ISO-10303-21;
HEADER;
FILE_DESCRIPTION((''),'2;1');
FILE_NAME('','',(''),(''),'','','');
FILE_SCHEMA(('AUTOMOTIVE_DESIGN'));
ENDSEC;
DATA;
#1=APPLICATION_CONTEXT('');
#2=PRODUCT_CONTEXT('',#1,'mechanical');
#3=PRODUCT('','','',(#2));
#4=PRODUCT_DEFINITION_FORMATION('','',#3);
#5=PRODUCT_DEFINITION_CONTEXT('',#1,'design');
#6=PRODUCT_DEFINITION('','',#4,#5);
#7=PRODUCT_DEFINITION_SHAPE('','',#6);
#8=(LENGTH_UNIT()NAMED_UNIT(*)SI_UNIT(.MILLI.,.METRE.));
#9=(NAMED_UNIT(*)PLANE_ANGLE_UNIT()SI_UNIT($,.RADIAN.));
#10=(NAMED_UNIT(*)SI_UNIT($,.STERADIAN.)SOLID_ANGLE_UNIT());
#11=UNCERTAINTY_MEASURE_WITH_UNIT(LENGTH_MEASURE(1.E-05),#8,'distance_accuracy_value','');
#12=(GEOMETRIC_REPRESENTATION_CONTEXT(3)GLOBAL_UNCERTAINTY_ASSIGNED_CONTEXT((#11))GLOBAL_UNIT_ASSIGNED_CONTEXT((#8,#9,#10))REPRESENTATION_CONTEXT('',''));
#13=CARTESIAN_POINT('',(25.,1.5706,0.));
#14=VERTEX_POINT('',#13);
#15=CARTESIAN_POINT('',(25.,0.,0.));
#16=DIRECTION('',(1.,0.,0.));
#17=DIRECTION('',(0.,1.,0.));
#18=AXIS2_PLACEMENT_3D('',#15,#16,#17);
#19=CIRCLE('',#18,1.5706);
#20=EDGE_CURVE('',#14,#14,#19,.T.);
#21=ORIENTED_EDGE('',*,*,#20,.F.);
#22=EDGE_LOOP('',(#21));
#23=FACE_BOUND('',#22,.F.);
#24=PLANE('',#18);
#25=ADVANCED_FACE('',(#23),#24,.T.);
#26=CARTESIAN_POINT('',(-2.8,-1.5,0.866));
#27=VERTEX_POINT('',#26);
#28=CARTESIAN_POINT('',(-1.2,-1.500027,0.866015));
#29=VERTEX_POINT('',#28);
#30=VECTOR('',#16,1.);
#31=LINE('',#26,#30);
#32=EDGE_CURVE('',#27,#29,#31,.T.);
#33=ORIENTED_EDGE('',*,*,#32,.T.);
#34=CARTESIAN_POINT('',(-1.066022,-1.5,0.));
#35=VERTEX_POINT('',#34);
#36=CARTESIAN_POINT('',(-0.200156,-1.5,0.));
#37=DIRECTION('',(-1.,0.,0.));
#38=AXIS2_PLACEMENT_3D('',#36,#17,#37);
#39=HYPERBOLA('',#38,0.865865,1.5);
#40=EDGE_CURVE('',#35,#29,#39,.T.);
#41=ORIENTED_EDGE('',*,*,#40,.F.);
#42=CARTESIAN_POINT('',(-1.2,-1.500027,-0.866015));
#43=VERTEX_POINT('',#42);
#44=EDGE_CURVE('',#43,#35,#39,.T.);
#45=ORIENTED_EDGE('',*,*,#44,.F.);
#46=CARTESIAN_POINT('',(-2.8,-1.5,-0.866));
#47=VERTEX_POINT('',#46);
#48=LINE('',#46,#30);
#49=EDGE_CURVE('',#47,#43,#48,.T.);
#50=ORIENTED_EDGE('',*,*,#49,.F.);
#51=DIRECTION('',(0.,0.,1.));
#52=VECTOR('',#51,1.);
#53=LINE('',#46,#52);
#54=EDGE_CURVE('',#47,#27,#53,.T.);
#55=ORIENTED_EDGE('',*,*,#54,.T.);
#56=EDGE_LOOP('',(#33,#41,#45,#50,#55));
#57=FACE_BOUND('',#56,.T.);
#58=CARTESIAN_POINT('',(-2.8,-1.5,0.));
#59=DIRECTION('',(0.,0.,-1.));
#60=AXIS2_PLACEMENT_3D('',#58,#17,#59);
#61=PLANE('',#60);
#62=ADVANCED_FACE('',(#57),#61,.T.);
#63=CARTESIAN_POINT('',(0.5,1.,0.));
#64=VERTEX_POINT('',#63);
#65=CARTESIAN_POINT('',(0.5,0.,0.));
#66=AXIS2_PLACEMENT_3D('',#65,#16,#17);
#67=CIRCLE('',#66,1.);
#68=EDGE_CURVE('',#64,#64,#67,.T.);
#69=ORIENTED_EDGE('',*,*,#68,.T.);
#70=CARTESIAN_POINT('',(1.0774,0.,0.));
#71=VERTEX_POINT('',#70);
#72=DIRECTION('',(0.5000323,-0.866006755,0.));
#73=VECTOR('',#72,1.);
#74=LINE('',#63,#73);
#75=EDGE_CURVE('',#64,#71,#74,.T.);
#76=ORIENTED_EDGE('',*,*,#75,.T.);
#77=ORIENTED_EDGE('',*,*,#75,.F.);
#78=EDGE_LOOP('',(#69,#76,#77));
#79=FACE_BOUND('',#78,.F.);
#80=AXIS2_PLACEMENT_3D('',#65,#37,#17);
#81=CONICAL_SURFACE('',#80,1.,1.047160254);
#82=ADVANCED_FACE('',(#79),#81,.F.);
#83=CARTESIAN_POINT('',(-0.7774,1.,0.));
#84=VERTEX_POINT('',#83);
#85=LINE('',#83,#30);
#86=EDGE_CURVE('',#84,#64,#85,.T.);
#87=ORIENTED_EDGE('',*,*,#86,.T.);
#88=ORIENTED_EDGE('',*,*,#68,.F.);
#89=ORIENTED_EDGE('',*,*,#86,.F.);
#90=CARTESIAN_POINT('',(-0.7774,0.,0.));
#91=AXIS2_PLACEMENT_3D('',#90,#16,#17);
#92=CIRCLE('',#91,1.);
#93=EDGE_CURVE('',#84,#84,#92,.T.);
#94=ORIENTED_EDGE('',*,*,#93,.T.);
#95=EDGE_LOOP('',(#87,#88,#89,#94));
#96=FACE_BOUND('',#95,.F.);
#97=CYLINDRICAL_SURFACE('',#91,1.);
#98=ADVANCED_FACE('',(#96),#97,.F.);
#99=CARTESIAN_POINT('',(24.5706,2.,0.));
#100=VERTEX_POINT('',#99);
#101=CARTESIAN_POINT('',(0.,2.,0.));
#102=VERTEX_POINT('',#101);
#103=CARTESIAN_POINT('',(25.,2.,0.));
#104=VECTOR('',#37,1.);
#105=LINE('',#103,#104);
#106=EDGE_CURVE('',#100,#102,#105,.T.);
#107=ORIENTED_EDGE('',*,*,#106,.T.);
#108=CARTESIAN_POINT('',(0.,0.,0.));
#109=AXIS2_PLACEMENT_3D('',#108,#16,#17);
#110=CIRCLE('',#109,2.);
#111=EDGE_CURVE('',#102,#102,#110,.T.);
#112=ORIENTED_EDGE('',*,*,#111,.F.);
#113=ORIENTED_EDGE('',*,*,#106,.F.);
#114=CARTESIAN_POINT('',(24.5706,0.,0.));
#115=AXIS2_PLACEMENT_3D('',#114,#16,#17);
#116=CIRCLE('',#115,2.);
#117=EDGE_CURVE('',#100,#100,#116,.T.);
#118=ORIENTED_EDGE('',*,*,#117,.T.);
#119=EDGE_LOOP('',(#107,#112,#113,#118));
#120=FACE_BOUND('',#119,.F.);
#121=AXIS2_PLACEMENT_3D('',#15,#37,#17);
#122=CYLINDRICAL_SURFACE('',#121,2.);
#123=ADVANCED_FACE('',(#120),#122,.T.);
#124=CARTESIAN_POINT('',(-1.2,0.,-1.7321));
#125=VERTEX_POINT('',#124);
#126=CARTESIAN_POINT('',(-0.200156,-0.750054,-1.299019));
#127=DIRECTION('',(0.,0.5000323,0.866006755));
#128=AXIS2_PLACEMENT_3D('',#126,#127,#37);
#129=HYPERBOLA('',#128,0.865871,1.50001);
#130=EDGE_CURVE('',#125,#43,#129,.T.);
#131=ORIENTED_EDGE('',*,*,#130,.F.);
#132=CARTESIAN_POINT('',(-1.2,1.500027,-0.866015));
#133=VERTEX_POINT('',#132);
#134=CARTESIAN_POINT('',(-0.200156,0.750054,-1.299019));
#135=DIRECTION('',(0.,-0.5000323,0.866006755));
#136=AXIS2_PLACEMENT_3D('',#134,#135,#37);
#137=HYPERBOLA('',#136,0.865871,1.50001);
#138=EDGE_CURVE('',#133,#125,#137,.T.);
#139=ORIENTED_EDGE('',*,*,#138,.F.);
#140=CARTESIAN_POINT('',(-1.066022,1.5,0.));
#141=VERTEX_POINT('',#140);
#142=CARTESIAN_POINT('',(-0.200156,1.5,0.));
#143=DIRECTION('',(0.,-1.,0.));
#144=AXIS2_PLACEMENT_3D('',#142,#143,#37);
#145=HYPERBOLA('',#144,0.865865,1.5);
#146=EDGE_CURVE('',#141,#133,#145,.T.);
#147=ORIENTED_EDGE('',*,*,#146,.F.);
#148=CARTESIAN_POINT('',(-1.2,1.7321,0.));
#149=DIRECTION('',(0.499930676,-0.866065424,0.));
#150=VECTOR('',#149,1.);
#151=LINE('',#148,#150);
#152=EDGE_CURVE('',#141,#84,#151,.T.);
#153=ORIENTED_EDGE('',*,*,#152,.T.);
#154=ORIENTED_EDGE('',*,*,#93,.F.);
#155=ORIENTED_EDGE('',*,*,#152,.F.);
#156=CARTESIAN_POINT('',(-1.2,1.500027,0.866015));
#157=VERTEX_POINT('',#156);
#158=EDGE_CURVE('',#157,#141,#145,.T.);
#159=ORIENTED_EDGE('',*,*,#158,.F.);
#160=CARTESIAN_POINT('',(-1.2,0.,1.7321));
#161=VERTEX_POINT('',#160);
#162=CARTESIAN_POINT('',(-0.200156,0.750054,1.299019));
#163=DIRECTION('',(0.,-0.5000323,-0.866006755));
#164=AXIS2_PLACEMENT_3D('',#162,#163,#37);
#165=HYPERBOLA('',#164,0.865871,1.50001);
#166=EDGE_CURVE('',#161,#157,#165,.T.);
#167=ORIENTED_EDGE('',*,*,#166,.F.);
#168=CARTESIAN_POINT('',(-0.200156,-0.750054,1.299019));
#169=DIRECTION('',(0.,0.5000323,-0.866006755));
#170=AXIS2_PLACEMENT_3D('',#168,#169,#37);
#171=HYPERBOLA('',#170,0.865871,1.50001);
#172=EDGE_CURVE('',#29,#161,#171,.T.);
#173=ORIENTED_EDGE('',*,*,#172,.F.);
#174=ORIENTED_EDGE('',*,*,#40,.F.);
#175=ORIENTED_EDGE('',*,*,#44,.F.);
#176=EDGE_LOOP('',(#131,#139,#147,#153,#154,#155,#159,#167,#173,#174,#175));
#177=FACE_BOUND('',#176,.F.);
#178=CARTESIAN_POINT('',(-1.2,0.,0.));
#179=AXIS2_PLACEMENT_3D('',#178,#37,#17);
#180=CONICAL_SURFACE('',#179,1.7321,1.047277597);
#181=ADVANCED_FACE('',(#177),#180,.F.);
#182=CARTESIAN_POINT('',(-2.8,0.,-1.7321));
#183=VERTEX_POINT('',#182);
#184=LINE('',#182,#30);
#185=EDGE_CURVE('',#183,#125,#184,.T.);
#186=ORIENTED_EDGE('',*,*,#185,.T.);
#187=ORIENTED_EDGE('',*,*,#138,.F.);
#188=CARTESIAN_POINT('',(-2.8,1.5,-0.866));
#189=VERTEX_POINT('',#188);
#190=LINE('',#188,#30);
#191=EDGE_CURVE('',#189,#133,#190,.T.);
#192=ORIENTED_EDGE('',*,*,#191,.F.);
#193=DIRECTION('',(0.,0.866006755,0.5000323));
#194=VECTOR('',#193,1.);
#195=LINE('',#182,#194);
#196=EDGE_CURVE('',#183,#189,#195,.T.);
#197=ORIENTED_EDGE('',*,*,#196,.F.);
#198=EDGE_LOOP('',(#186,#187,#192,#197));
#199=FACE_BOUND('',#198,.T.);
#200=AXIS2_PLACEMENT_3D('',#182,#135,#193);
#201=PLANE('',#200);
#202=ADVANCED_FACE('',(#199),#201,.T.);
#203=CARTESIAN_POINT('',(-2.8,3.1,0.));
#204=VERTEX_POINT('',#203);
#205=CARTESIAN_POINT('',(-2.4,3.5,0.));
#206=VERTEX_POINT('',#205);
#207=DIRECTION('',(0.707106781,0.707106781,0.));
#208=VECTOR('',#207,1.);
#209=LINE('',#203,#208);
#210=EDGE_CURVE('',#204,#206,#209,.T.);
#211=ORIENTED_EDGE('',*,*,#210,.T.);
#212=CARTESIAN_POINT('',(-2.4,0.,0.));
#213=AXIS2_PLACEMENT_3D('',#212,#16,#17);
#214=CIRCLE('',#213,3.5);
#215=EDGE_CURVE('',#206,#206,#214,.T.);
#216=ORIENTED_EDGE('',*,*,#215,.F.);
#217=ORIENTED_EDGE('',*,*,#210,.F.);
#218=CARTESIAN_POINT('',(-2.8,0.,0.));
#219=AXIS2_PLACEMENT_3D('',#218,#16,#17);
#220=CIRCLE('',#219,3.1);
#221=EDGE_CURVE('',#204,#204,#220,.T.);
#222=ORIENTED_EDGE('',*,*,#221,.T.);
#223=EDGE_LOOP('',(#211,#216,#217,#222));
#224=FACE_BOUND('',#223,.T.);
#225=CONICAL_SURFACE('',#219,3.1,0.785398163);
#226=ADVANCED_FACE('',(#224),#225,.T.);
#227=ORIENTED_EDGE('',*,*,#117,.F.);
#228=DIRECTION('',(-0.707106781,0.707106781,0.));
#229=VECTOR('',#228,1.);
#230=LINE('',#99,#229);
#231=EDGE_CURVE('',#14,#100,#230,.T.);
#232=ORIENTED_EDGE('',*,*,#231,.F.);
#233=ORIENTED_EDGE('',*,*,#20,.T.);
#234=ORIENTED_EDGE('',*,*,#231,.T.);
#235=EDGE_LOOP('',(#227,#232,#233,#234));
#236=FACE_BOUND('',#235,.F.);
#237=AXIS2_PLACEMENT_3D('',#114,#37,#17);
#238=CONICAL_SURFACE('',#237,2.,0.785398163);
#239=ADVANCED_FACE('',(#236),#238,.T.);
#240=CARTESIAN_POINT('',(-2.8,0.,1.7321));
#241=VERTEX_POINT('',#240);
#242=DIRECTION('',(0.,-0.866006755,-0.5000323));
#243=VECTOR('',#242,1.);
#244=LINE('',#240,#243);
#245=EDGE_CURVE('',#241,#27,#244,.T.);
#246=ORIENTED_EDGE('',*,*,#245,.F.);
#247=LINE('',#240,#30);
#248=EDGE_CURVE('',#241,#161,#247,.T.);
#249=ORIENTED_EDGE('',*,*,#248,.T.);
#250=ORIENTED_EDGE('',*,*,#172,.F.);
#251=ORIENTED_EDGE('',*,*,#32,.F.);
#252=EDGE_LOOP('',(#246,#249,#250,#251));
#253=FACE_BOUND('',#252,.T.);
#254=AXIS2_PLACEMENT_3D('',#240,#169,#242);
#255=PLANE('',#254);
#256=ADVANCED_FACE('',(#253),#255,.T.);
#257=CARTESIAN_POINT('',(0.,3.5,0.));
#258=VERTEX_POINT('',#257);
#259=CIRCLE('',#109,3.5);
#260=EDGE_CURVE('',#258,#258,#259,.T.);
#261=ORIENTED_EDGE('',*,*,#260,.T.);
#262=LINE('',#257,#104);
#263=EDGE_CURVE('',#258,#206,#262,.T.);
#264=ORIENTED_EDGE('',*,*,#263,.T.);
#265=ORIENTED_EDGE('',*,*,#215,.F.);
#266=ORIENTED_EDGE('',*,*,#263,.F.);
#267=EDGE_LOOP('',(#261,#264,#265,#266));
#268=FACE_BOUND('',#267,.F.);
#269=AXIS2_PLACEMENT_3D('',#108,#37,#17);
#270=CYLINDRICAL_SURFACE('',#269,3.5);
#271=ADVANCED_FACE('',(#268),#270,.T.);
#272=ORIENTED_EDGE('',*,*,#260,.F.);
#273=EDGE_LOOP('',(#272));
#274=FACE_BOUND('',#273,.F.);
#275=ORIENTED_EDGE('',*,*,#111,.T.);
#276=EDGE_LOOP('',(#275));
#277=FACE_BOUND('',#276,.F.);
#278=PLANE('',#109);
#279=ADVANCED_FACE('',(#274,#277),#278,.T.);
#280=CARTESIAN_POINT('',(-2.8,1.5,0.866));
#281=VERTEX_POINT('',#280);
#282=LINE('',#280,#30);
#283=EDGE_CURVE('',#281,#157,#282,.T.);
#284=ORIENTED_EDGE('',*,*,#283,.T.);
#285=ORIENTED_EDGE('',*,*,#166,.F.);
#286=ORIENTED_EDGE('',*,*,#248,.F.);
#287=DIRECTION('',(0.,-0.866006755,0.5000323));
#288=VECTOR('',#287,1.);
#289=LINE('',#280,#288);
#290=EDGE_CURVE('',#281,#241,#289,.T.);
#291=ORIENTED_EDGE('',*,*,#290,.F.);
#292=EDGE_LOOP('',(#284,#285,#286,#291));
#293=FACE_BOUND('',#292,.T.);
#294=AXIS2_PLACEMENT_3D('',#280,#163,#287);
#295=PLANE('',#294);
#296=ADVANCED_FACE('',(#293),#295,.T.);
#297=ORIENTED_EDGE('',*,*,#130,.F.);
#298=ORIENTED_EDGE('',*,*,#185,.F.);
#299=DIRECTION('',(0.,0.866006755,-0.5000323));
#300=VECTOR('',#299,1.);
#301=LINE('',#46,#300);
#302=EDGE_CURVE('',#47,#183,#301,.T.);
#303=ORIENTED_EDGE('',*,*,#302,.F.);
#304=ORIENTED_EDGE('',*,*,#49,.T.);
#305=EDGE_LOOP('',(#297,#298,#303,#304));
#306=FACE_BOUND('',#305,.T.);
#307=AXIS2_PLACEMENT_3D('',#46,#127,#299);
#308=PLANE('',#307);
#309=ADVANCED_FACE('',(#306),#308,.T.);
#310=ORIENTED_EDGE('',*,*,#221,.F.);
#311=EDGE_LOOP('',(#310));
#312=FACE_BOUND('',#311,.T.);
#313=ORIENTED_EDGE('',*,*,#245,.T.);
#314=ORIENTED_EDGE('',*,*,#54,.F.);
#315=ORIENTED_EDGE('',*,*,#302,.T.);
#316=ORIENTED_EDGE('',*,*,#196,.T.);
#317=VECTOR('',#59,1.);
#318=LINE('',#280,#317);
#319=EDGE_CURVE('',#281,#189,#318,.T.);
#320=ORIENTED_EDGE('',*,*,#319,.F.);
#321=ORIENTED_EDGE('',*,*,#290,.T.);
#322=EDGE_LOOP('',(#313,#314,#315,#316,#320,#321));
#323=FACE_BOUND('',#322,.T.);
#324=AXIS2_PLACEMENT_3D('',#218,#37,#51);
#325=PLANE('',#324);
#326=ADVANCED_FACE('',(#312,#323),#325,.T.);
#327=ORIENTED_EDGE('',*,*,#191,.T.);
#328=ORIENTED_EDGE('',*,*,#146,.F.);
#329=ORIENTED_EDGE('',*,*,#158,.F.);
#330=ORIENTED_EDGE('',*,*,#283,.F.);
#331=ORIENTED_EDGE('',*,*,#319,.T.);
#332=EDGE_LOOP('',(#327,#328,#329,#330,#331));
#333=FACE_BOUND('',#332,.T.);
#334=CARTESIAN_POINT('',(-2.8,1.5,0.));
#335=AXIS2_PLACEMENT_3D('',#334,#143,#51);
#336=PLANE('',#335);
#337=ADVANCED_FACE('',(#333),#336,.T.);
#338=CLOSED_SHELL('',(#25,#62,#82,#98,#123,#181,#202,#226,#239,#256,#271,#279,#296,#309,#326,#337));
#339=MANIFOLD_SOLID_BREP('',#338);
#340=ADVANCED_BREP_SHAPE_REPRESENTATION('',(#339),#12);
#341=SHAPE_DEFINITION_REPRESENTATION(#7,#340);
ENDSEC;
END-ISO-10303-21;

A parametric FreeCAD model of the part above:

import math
import FreeCAD as App
import Part
import Sketcher


def edges_at(feature, points):
    """Names of the edges that pass closest to the given points."""
    edges = feature.Shape.Edges
    near = lambda p: min(range(len(edges)), key=lambda i: edges[i].distToShape(Part.Vertex(*p))[0])
    return sorted({f"Edge{near(p) + 1}" for p in points})

doc = App.newDocument("Part")
params = doc.addObject("Spreadsheet::Sheet", "Params")
for row, (alias, value) in enumerate([
    ("sketch1_width", "25 mm"),
    ("sketch1_height", "2 mm"),
    ("sketch1_width2", "2.8 mm"),
    ("sketch1_width3", "1.6 mm"),
    ("sketch1_height2", "1.5 mm"),
    ("revolution_angle", "360 deg"),
    ("sketch2_width", "0.4 mm"),
    ("groove_angle", "360 deg"),
    ("pad1_length", "1.734 mm"),
    ("chamfer_size", "0.4294 mm"),
    ("chamfer_size2", "0.4294 mm"),
], start=1):
    params.set(f"A{row}", alias)
    params.set(f"B{row}", "=" + value)
    params.setAlias(f"B{row}", alias)

body = doc.addObject("PartDesign::Body", "Body")

sketch1 = body.newObject("Sketcher::SketchObject", "Sketch")
sketch1.AttachmentSupport = (doc.getObject("XY_Plane"), [""])
sketch1.MapMode = "FlatFace"
sketch1.addGeometry(Part.LineSegment(App.Vector(0.5, 1, 0), App.Vector(1.1, 0, 0)), False)
sketch1.addGeometry(Part.LineSegment(App.Vector(1.1, 0, 0), App.Vector(25, 0, 0)), False)
sketch1.addGeometry(Part.LineSegment(App.Vector(25, 0, 0), App.Vector(25, 2, 0)), False)
sketch1.addGeometry(Part.LineSegment(App.Vector(25, 2, 0), App.Vector(0, 2, 0)), False)
sketch1.addGeometry(Part.LineSegment(App.Vector(0, 2, 0), App.Vector(0, 3.5, 0)), False)
sketch1.addGeometry(Part.LineSegment(App.Vector(0, 3.5, 0), App.Vector(-2.8, 3.5, 0)), False)
sketch1.addGeometry(Part.LineSegment(App.Vector(-2.8, 3.5, 0), App.Vector(-2.8, 1.7, 0)), False)
sketch1.addGeometry(Part.LineSegment(App.Vector(-2.8, 1.7, 0), App.Vector(-1.2, 1.7, 0)), False)
sketch1.addGeometry(Part.LineSegment(App.Vector(-1.2, 1.7, 0), App.Vector(-0.8, 1, 0)), False)
sketch1.addGeometry(Part.LineSegment(App.Vector(-0.8, 1, 0), App.Vector(0.5, 1, 0)), False)
sketch1.addConstraint(Sketcher.Constraint("Coincident", 0, 2, 1, 1))
sketch1.addConstraint(Sketcher.Constraint("Coincident", 1, 2, 2, 1))
sketch1.addConstraint(Sketcher.Constraint("Coincident", 2, 2, 3, 1))
sketch1.addConstraint(Sketcher.Constraint("Coincident", 3, 2, 4, 1))
sketch1.addConstraint(Sketcher.Constraint("Coincident", 4, 2, 5, 1))
sketch1.addConstraint(Sketcher.Constraint("Coincident", 5, 2, 6, 1))
sketch1.addConstraint(Sketcher.Constraint("Coincident", 6, 2, 7, 1))
sketch1.addConstraint(Sketcher.Constraint("Coincident", 7, 2, 8, 1))
sketch1.addConstraint(Sketcher.Constraint("Coincident", 8, 2, 9, 1))
sketch1.addConstraint(Sketcher.Constraint("Coincident", 9, 2, 0, 1))
sketch1.addConstraint(Sketcher.Constraint("Horizontal", 1))
sketch1.addConstraint(Sketcher.Constraint("Vertical", 2))
sketch1.addConstraint(Sketcher.Constraint("Horizontal", 3))
sketch1.addConstraint(Sketcher.Constraint("Vertical", 4))
sketch1.addConstraint(Sketcher.Constraint("Horizontal", 5))
sketch1.addConstraint(Sketcher.Constraint("Vertical", 6))
sketch1.addConstraint(Sketcher.Constraint("Horizontal", 7))
sketch1.addConstraint(Sketcher.Constraint("Horizontal", 9))
sketch1.addConstraint(Sketcher.Constraint("PointOnObject", 0, 2, -1))
sketch1.addConstraint(Sketcher.Constraint("PointOnObject", 3, 2, -2))
sketch1.addConstraint(Sketcher.Constraint("Parallel", 0, 8))
sketch1.addConstraint(Sketcher.Constraint("DistanceX", 3, 2, 3, 1, 25.0))
sketch1.addConstraint(Sketcher.Constraint("DistanceY", 2, 1, 2, 2, 2.0))
sketch1.addConstraint(Sketcher.Constraint("DistanceX", 5, 2, 5, 1, 2.8))
sketch1.addConstraint(Sketcher.Constraint("DistanceX", 7, 1, 7, 2, 1.6))
sketch1.addConstraint(Sketcher.Constraint("DistanceY", 4, 1, 4, 2, 1.5))
sketch1.addConstraint(Sketcher.Constraint("DistanceY", -1, 1, 8, 2, 1.0))
sketch1.addConstraint(Sketcher.Constraint("DistanceX", -1, 1, 9, 2, 0.5))
sketch1.addConstraint(Sketcher.Constraint("DistanceY", 6, 2, 6, 1, 1.768))
sketch1.addConstraint(Sketcher.Constraint("DistanceX", 1, 1, 1, 2, 23.9226))
sketch1.setExpression("Constraints[21]", "Params.sketch1_width")
sketch1.setExpression("Constraints[22]", "Params.sketch1_height")
sketch1.setExpression("Constraints[23]", "Params.sketch1_width2")
sketch1.setExpression("Constraints[24]", "Params.sketch1_width3")
sketch1.setExpression("Constraints[25]", "Params.sketch1_height2")
revolution = body.newObject("PartDesign::Revolution", "Revolution")
revolution.Profile = sketch1
revolution.ReferenceAxis = (sketch1, ["H_Axis"])
revolution.setExpression("Angle", "Params.revolution_angle")

sketch2 = body.newObject("Sketcher::SketchObject", "Sketch001")
sketch2.AttachmentSupport = (doc.getObject("XY_Plane"), [""])
sketch2.MapMode = "FlatFace"
sketch2.addGeometry(Part.LineSegment(App.Vector(-2.8, 3.1, 0), App.Vector(-2.4, 3.5, 0)), False)
sketch2.addGeometry(Part.LineSegment(App.Vector(-2.4, 3.5, 0), App.Vector(-2.8, 3.5, 0)), False)
sketch2.addGeometry(Part.LineSegment(App.Vector(-2.8, 3.5, 0), App.Vector(-2.8, 3.1, 0)), False)
sketch2.addConstraint(Sketcher.Constraint("Coincident", 0, 2, 1, 1))
sketch2.addConstraint(Sketcher.Constraint("Coincident", 1, 2, 2, 1))
sketch2.addConstraint(Sketcher.Constraint("Coincident", 2, 2, 0, 1))
sketch2.addConstraint(Sketcher.Constraint("Horizontal", 1))
sketch2.addConstraint(Sketcher.Constraint("Vertical", 2))
sketch2.addConstraint(Sketcher.Constraint("Equal", 1, 2))
sketch2.addConstraint(Sketcher.Constraint("DistanceX", 1, 2, 1, 1, 0.4))
sketch2.addConstraint(Sketcher.Constraint("DistanceX", 1, 2, -1, 1, 2.8))
sketch2.addConstraint(Sketcher.Constraint("DistanceY", -1, 1, 0, 2, 3.5))
sketch2.setExpression("Constraints[6]", "Params.sketch2_width")
groove = body.newObject("PartDesign::Groove", "Groove")
groove.Profile = sketch2
groove.ReferenceAxis = (sketch2, ["H_Axis"])
groove.setExpression("Angle", "Params.groove_angle")

sketch3 = body.newObject("Sketcher::SketchObject", "Sketch002")
sketch3.AttachmentSupport = (doc.getObject("YZ_Plane"), [""])
sketch3.MapMode = "FlatFace"
sketch3.AttachmentOffset = App.Placement(App.Vector(0, 0, -2.8), App.Rotation())
sketch3.addGeometry(Part.LineSegment(App.Vector(1.5, 0.9, 0), App.Vector(0, 1.7, 0)), False)
sketch3.addGeometry(Part.ArcOfCircle(Part.Circle(App.Vector(0, 0, 0), App.Vector(0, 0, 1), 1.7), math.radians(30), math.radians(90)), False)
sketch3.addGeometry(Part.ArcOfCircle(Part.Circle(App.Vector(0, 0, 0), App.Vector(0, 0, 1), 1.7), math.radians(90), math.radians(150)), False)
sketch3.addGeometry(Part.LineSegment(App.Vector(0, 1.7, 0), App.Vector(-1.5, 0.9, 0)), False)
sketch3.addGeometry(Part.ArcOfCircle(Part.Circle(App.Vector(0, 0, 0), App.Vector(0, 0, 1), 1.7), math.radians(-30), math.radians(30)), False)
sketch3.addGeometry(Part.LineSegment(App.Vector(1.5, 0.9, 0), App.Vector(1.5, -0.9, 0)), False)
sketch3.addGeometry(Part.LineSegment(App.Vector(-1.5, 0.9, 0), App.Vector(-1.5, -0.9, 0)), False)
sketch3.addGeometry(Part.ArcOfCircle(Part.Circle(App.Vector(0, 0, 0), App.Vector(0, 0, 1), 1.7), math.radians(150), math.radians(210)), False)
sketch3.addGeometry(Part.LineSegment(App.Vector(-1.5, -0.9, 0), App.Vector(0, -1.7, 0)), False)
sketch3.addGeometry(Part.ArcOfCircle(Part.Circle(App.Vector(0, 0, 0), App.Vector(0, 0, 1), 1.7), math.radians(-150), math.radians(-90)), False)
sketch3.addGeometry(Part.ArcOfCircle(Part.Circle(App.Vector(0, 0, 0), App.Vector(0, 0, 1), 1.7), math.radians(-90), math.radians(-30)), False)
sketch3.addGeometry(Part.LineSegment(App.Vector(0, -1.7, 0), App.Vector(1.5, -0.9, 0)), False)
sketch3.addConstraint(Sketcher.Constraint("Coincident", 0, 1, 1, 1))
sketch3.addConstraint(Sketcher.Constraint("Coincident", 1, 2, 0, 2))
sketch3.addConstraint(Sketcher.Constraint("Coincident", 2, 1, 3, 1))
sketch3.addConstraint(Sketcher.Constraint("Coincident", 3, 2, 2, 2))
sketch3.addConstraint(Sketcher.Constraint("Coincident", 4, 1, 5, 2))
sketch3.addConstraint(Sketcher.Constraint("Coincident", 5, 1, 4, 2))
sketch3.addConstraint(Sketcher.Constraint("Coincident", 6, 1, 7, 1))
sketch3.addConstraint(Sketcher.Constraint("Coincident", 7, 2, 6, 2))
sketch3.addConstraint(Sketcher.Constraint("Coincident", 8, 1, 9, 1))
sketch3.addConstraint(Sketcher.Constraint("Coincident", 9, 2, 8, 2))
sketch3.addConstraint(Sketcher.Constraint("Coincident", 10, 1, 11, 1))
sketch3.addConstraint(Sketcher.Constraint("Coincident", 11, 2, 10, 2))
sketch3.addConstraint(Sketcher.Constraint("Vertical", 5))
sketch3.addConstraint(Sketcher.Constraint("Vertical", 6))
sketch3.addConstraint(Sketcher.Constraint("Coincident", 1, 3, -1, 1))
sketch3.addConstraint(Sketcher.Constraint("Coincident", 2, 3, -1, 1))
sketch3.addConstraint(Sketcher.Constraint("Coincident", 4, 3, -1, 1))
sketch3.addConstraint(Sketcher.Constraint("Coincident", 7, 3, -1, 1))
sketch3.addConstraint(Sketcher.Constraint("Coincident", 9, 3, -1, 1))
sketch3.addConstraint(Sketcher.Constraint("Coincident", 10, 3, -1, 1))
sketch3.addConstraint(Sketcher.Constraint("Coincident", 2, 1, 1, 2))
sketch3.addConstraint(Sketcher.Constraint("Coincident", 5, 1, 0, 1))
sketch3.addConstraint(Sketcher.Constraint("Coincident", 6, 1, 3, 2))
sketch3.addConstraint(Sketcher.Constraint("Coincident", 8, 1, 7, 2))
sketch3.addConstraint(Sketcher.Constraint("Coincident", 10, 1, 9, 2))
sketch3.addConstraint(Sketcher.Constraint("PointOnObject", 1, 2, -2))
sketch3.addConstraint(Sketcher.Constraint("PointOnObject", 9, 2, -2))
sketch3.addConstraint(Sketcher.Constraint("Parallel", 0, 8))
sketch3.addConstraint(Sketcher.Constraint("Parallel", 3, 11))
sketch3.addConstraint(Sketcher.Constraint("Radius", 1, 1.732))
sketch3.addConstraint(Sketcher.Constraint("DistanceX", -1, 1, 0, 1, 1.5))
pad1 = body.newObject("PartDesign::Pad", "Pad")
pad1.Profile = sketch3
pad1.setExpression("Length", "Params.pad1_length")
doc.recompute()

chamfer = body.newObject("PartDesign::Chamfer", "Chamfer")
chamfer.Base = (pad1, edges_at(pad1, [(25, -2, 0)]))
chamfer.ChamferType = "Two distances"
chamfer.setExpression("Size", "Params.chamfer_size")
chamfer.setExpression("Size2", "Params.chamfer_size2")

doc.recompute()
